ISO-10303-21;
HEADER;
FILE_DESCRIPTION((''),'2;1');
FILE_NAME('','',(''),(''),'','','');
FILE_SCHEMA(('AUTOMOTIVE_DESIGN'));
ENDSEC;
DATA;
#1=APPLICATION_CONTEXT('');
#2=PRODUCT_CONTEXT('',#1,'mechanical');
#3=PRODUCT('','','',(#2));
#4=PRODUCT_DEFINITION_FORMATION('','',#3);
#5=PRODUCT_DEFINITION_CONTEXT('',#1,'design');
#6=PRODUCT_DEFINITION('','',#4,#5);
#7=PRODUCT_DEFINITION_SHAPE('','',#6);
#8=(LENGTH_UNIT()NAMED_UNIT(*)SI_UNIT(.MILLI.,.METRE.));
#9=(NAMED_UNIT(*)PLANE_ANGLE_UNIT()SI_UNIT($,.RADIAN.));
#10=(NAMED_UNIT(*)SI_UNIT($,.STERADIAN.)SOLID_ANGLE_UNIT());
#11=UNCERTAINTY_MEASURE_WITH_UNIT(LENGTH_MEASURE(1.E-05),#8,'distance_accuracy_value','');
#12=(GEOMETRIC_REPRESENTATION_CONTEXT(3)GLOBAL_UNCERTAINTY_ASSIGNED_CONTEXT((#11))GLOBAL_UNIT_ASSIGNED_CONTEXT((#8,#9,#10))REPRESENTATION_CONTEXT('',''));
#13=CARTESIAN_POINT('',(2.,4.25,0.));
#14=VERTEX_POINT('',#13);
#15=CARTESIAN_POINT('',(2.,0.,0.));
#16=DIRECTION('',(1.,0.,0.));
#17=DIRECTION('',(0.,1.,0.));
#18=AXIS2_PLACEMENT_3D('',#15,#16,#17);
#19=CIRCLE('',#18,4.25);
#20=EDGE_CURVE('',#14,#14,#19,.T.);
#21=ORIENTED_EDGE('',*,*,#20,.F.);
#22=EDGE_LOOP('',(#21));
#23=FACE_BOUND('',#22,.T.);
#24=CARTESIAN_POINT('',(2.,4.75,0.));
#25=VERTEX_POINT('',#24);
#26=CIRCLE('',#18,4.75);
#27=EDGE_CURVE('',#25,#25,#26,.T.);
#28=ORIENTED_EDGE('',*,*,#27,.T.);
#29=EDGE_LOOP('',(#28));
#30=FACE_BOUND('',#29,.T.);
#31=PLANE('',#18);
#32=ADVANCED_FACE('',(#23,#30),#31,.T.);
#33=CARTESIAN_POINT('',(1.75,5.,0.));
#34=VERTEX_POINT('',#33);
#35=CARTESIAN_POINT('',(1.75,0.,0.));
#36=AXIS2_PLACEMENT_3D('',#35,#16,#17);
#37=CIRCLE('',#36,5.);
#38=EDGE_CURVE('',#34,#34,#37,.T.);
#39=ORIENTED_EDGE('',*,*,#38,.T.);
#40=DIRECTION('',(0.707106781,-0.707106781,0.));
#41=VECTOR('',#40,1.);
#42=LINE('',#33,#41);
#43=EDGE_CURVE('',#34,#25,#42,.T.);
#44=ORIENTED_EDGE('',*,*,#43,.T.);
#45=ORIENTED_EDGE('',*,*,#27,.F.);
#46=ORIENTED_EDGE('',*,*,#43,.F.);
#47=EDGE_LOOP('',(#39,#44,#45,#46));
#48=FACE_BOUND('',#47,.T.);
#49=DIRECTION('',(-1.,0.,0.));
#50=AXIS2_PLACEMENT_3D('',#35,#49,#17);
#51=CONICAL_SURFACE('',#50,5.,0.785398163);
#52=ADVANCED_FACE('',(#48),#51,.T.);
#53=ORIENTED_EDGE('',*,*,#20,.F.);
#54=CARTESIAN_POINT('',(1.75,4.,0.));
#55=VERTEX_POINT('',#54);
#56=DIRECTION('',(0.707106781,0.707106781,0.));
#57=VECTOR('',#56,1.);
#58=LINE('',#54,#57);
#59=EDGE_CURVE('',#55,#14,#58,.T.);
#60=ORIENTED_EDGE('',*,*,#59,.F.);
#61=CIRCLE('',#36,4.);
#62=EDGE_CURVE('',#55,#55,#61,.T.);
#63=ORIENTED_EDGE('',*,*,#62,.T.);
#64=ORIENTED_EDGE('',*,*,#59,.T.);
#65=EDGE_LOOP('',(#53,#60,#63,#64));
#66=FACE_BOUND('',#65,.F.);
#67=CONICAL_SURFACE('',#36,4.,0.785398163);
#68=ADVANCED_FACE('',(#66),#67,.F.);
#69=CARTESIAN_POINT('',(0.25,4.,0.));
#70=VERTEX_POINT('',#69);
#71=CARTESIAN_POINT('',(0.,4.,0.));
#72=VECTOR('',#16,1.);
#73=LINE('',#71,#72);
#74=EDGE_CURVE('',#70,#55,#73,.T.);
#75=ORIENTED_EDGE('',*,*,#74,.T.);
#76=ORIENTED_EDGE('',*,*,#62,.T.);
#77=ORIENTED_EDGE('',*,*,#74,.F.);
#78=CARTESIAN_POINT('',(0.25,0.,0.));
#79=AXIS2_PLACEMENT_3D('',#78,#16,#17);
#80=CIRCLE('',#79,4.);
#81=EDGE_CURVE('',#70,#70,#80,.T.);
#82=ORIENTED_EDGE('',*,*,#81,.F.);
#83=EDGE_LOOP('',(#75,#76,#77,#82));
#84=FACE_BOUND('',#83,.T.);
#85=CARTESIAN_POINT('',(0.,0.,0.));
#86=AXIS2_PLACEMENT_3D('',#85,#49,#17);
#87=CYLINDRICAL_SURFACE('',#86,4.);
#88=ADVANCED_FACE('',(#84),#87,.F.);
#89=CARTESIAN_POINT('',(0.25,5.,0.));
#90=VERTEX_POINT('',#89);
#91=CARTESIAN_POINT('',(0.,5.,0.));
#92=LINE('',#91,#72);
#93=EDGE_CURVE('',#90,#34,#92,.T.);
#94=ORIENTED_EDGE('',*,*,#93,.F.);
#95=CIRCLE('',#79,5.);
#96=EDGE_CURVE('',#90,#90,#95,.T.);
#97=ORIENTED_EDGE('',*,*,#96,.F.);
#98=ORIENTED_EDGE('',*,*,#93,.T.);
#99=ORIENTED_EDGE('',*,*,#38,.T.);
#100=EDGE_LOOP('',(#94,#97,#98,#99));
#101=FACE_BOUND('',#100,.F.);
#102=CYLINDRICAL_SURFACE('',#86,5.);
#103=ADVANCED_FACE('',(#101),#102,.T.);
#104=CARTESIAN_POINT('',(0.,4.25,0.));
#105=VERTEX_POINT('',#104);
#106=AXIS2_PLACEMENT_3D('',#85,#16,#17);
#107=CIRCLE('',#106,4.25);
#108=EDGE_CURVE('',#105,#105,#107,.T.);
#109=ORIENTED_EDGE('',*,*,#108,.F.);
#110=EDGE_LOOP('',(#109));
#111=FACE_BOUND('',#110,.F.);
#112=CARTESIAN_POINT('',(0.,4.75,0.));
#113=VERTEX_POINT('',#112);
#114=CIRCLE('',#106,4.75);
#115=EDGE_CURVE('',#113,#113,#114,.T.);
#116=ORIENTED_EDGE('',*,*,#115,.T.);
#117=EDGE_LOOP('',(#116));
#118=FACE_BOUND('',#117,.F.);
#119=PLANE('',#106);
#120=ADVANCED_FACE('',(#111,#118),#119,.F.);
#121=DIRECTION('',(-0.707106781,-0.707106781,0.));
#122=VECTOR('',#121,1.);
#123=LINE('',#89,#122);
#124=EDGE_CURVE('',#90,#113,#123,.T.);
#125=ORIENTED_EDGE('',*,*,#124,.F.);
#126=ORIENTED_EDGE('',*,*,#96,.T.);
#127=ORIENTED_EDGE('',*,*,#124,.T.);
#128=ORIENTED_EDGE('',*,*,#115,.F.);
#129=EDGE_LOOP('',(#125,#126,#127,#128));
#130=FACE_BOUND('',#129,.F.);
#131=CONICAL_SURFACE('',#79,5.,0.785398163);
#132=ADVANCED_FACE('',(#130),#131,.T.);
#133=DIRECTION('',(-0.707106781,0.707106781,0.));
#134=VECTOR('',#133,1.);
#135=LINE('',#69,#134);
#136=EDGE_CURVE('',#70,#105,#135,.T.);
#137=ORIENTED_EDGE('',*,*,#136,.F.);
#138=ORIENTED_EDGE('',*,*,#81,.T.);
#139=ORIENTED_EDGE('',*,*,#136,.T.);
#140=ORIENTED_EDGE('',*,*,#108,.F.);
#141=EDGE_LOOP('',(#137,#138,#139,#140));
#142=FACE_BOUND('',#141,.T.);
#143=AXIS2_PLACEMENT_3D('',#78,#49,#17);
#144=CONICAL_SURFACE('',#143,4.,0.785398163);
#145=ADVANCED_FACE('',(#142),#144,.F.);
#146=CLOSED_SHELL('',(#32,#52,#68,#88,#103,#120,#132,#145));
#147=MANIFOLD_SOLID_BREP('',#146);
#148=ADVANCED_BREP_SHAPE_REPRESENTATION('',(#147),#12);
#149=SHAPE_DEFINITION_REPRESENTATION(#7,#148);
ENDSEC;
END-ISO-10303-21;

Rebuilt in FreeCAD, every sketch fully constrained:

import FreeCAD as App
import Part
import Sketcher

V = App.Vector


def edges_at(feature, points):
    """Names of the edges that pass closest to the given points."""
    edges = feature.Shape.Edges
    near = lambda p: min(range(len(edges)), key=lambda i: edges[i].distToShape(Part.Vertex(*p))[0])
    return sorted({f"Edge{near(p) + 1}" for p in points})

doc = App.newDocument("Part")
body = doc.addObject("PartDesign::Body", "Body")

# Sketch on YZ plane
sketch1 = doc.addObject("Sketcher::SketchObject", "Sketch")
body.addObject(sketch1)
sketch1.AttachmentSupport = (doc.YZ_Plane, [""])
sketch1.MapMode = "FlatFace"
sketch1.addGeometry([
    Part.Circle(V(0, 0, 0), V(0, 0, 1), 5),
    Part.Circle(V(0, 0, 0), V(0, 0, 1), 4),
], False)
sketch1.addConstraint([
    Sketcher.Constraint("Coincident", 0, 3, -1, 1),
    Sketcher.Constraint("Coincident", 1, 3, -1, 1),
    Sketcher.Constraint("Diameter", 0, 10.0),
    Sketcher.Constraint("Diameter", 1, 8.0),
])
pad1 = doc.addObject("PartDesign::Pad", "Pad")
body.addObject(pad1)
pad1.Profile = sketch1
pad1.Length = 2
doc.recompute()

chamfer = doc.addObject("PartDesign::Chamfer", "Chamfer")
body.addObject(chamfer)
chamfer.Base = (pad1, edges_at(pad1, [
    (2, -5, 0),
    (0, -5, 0),
    (0, -4, 0),
    (2, -4, 0),
]))
chamfer.Size = 0.25

doc.recompute()
